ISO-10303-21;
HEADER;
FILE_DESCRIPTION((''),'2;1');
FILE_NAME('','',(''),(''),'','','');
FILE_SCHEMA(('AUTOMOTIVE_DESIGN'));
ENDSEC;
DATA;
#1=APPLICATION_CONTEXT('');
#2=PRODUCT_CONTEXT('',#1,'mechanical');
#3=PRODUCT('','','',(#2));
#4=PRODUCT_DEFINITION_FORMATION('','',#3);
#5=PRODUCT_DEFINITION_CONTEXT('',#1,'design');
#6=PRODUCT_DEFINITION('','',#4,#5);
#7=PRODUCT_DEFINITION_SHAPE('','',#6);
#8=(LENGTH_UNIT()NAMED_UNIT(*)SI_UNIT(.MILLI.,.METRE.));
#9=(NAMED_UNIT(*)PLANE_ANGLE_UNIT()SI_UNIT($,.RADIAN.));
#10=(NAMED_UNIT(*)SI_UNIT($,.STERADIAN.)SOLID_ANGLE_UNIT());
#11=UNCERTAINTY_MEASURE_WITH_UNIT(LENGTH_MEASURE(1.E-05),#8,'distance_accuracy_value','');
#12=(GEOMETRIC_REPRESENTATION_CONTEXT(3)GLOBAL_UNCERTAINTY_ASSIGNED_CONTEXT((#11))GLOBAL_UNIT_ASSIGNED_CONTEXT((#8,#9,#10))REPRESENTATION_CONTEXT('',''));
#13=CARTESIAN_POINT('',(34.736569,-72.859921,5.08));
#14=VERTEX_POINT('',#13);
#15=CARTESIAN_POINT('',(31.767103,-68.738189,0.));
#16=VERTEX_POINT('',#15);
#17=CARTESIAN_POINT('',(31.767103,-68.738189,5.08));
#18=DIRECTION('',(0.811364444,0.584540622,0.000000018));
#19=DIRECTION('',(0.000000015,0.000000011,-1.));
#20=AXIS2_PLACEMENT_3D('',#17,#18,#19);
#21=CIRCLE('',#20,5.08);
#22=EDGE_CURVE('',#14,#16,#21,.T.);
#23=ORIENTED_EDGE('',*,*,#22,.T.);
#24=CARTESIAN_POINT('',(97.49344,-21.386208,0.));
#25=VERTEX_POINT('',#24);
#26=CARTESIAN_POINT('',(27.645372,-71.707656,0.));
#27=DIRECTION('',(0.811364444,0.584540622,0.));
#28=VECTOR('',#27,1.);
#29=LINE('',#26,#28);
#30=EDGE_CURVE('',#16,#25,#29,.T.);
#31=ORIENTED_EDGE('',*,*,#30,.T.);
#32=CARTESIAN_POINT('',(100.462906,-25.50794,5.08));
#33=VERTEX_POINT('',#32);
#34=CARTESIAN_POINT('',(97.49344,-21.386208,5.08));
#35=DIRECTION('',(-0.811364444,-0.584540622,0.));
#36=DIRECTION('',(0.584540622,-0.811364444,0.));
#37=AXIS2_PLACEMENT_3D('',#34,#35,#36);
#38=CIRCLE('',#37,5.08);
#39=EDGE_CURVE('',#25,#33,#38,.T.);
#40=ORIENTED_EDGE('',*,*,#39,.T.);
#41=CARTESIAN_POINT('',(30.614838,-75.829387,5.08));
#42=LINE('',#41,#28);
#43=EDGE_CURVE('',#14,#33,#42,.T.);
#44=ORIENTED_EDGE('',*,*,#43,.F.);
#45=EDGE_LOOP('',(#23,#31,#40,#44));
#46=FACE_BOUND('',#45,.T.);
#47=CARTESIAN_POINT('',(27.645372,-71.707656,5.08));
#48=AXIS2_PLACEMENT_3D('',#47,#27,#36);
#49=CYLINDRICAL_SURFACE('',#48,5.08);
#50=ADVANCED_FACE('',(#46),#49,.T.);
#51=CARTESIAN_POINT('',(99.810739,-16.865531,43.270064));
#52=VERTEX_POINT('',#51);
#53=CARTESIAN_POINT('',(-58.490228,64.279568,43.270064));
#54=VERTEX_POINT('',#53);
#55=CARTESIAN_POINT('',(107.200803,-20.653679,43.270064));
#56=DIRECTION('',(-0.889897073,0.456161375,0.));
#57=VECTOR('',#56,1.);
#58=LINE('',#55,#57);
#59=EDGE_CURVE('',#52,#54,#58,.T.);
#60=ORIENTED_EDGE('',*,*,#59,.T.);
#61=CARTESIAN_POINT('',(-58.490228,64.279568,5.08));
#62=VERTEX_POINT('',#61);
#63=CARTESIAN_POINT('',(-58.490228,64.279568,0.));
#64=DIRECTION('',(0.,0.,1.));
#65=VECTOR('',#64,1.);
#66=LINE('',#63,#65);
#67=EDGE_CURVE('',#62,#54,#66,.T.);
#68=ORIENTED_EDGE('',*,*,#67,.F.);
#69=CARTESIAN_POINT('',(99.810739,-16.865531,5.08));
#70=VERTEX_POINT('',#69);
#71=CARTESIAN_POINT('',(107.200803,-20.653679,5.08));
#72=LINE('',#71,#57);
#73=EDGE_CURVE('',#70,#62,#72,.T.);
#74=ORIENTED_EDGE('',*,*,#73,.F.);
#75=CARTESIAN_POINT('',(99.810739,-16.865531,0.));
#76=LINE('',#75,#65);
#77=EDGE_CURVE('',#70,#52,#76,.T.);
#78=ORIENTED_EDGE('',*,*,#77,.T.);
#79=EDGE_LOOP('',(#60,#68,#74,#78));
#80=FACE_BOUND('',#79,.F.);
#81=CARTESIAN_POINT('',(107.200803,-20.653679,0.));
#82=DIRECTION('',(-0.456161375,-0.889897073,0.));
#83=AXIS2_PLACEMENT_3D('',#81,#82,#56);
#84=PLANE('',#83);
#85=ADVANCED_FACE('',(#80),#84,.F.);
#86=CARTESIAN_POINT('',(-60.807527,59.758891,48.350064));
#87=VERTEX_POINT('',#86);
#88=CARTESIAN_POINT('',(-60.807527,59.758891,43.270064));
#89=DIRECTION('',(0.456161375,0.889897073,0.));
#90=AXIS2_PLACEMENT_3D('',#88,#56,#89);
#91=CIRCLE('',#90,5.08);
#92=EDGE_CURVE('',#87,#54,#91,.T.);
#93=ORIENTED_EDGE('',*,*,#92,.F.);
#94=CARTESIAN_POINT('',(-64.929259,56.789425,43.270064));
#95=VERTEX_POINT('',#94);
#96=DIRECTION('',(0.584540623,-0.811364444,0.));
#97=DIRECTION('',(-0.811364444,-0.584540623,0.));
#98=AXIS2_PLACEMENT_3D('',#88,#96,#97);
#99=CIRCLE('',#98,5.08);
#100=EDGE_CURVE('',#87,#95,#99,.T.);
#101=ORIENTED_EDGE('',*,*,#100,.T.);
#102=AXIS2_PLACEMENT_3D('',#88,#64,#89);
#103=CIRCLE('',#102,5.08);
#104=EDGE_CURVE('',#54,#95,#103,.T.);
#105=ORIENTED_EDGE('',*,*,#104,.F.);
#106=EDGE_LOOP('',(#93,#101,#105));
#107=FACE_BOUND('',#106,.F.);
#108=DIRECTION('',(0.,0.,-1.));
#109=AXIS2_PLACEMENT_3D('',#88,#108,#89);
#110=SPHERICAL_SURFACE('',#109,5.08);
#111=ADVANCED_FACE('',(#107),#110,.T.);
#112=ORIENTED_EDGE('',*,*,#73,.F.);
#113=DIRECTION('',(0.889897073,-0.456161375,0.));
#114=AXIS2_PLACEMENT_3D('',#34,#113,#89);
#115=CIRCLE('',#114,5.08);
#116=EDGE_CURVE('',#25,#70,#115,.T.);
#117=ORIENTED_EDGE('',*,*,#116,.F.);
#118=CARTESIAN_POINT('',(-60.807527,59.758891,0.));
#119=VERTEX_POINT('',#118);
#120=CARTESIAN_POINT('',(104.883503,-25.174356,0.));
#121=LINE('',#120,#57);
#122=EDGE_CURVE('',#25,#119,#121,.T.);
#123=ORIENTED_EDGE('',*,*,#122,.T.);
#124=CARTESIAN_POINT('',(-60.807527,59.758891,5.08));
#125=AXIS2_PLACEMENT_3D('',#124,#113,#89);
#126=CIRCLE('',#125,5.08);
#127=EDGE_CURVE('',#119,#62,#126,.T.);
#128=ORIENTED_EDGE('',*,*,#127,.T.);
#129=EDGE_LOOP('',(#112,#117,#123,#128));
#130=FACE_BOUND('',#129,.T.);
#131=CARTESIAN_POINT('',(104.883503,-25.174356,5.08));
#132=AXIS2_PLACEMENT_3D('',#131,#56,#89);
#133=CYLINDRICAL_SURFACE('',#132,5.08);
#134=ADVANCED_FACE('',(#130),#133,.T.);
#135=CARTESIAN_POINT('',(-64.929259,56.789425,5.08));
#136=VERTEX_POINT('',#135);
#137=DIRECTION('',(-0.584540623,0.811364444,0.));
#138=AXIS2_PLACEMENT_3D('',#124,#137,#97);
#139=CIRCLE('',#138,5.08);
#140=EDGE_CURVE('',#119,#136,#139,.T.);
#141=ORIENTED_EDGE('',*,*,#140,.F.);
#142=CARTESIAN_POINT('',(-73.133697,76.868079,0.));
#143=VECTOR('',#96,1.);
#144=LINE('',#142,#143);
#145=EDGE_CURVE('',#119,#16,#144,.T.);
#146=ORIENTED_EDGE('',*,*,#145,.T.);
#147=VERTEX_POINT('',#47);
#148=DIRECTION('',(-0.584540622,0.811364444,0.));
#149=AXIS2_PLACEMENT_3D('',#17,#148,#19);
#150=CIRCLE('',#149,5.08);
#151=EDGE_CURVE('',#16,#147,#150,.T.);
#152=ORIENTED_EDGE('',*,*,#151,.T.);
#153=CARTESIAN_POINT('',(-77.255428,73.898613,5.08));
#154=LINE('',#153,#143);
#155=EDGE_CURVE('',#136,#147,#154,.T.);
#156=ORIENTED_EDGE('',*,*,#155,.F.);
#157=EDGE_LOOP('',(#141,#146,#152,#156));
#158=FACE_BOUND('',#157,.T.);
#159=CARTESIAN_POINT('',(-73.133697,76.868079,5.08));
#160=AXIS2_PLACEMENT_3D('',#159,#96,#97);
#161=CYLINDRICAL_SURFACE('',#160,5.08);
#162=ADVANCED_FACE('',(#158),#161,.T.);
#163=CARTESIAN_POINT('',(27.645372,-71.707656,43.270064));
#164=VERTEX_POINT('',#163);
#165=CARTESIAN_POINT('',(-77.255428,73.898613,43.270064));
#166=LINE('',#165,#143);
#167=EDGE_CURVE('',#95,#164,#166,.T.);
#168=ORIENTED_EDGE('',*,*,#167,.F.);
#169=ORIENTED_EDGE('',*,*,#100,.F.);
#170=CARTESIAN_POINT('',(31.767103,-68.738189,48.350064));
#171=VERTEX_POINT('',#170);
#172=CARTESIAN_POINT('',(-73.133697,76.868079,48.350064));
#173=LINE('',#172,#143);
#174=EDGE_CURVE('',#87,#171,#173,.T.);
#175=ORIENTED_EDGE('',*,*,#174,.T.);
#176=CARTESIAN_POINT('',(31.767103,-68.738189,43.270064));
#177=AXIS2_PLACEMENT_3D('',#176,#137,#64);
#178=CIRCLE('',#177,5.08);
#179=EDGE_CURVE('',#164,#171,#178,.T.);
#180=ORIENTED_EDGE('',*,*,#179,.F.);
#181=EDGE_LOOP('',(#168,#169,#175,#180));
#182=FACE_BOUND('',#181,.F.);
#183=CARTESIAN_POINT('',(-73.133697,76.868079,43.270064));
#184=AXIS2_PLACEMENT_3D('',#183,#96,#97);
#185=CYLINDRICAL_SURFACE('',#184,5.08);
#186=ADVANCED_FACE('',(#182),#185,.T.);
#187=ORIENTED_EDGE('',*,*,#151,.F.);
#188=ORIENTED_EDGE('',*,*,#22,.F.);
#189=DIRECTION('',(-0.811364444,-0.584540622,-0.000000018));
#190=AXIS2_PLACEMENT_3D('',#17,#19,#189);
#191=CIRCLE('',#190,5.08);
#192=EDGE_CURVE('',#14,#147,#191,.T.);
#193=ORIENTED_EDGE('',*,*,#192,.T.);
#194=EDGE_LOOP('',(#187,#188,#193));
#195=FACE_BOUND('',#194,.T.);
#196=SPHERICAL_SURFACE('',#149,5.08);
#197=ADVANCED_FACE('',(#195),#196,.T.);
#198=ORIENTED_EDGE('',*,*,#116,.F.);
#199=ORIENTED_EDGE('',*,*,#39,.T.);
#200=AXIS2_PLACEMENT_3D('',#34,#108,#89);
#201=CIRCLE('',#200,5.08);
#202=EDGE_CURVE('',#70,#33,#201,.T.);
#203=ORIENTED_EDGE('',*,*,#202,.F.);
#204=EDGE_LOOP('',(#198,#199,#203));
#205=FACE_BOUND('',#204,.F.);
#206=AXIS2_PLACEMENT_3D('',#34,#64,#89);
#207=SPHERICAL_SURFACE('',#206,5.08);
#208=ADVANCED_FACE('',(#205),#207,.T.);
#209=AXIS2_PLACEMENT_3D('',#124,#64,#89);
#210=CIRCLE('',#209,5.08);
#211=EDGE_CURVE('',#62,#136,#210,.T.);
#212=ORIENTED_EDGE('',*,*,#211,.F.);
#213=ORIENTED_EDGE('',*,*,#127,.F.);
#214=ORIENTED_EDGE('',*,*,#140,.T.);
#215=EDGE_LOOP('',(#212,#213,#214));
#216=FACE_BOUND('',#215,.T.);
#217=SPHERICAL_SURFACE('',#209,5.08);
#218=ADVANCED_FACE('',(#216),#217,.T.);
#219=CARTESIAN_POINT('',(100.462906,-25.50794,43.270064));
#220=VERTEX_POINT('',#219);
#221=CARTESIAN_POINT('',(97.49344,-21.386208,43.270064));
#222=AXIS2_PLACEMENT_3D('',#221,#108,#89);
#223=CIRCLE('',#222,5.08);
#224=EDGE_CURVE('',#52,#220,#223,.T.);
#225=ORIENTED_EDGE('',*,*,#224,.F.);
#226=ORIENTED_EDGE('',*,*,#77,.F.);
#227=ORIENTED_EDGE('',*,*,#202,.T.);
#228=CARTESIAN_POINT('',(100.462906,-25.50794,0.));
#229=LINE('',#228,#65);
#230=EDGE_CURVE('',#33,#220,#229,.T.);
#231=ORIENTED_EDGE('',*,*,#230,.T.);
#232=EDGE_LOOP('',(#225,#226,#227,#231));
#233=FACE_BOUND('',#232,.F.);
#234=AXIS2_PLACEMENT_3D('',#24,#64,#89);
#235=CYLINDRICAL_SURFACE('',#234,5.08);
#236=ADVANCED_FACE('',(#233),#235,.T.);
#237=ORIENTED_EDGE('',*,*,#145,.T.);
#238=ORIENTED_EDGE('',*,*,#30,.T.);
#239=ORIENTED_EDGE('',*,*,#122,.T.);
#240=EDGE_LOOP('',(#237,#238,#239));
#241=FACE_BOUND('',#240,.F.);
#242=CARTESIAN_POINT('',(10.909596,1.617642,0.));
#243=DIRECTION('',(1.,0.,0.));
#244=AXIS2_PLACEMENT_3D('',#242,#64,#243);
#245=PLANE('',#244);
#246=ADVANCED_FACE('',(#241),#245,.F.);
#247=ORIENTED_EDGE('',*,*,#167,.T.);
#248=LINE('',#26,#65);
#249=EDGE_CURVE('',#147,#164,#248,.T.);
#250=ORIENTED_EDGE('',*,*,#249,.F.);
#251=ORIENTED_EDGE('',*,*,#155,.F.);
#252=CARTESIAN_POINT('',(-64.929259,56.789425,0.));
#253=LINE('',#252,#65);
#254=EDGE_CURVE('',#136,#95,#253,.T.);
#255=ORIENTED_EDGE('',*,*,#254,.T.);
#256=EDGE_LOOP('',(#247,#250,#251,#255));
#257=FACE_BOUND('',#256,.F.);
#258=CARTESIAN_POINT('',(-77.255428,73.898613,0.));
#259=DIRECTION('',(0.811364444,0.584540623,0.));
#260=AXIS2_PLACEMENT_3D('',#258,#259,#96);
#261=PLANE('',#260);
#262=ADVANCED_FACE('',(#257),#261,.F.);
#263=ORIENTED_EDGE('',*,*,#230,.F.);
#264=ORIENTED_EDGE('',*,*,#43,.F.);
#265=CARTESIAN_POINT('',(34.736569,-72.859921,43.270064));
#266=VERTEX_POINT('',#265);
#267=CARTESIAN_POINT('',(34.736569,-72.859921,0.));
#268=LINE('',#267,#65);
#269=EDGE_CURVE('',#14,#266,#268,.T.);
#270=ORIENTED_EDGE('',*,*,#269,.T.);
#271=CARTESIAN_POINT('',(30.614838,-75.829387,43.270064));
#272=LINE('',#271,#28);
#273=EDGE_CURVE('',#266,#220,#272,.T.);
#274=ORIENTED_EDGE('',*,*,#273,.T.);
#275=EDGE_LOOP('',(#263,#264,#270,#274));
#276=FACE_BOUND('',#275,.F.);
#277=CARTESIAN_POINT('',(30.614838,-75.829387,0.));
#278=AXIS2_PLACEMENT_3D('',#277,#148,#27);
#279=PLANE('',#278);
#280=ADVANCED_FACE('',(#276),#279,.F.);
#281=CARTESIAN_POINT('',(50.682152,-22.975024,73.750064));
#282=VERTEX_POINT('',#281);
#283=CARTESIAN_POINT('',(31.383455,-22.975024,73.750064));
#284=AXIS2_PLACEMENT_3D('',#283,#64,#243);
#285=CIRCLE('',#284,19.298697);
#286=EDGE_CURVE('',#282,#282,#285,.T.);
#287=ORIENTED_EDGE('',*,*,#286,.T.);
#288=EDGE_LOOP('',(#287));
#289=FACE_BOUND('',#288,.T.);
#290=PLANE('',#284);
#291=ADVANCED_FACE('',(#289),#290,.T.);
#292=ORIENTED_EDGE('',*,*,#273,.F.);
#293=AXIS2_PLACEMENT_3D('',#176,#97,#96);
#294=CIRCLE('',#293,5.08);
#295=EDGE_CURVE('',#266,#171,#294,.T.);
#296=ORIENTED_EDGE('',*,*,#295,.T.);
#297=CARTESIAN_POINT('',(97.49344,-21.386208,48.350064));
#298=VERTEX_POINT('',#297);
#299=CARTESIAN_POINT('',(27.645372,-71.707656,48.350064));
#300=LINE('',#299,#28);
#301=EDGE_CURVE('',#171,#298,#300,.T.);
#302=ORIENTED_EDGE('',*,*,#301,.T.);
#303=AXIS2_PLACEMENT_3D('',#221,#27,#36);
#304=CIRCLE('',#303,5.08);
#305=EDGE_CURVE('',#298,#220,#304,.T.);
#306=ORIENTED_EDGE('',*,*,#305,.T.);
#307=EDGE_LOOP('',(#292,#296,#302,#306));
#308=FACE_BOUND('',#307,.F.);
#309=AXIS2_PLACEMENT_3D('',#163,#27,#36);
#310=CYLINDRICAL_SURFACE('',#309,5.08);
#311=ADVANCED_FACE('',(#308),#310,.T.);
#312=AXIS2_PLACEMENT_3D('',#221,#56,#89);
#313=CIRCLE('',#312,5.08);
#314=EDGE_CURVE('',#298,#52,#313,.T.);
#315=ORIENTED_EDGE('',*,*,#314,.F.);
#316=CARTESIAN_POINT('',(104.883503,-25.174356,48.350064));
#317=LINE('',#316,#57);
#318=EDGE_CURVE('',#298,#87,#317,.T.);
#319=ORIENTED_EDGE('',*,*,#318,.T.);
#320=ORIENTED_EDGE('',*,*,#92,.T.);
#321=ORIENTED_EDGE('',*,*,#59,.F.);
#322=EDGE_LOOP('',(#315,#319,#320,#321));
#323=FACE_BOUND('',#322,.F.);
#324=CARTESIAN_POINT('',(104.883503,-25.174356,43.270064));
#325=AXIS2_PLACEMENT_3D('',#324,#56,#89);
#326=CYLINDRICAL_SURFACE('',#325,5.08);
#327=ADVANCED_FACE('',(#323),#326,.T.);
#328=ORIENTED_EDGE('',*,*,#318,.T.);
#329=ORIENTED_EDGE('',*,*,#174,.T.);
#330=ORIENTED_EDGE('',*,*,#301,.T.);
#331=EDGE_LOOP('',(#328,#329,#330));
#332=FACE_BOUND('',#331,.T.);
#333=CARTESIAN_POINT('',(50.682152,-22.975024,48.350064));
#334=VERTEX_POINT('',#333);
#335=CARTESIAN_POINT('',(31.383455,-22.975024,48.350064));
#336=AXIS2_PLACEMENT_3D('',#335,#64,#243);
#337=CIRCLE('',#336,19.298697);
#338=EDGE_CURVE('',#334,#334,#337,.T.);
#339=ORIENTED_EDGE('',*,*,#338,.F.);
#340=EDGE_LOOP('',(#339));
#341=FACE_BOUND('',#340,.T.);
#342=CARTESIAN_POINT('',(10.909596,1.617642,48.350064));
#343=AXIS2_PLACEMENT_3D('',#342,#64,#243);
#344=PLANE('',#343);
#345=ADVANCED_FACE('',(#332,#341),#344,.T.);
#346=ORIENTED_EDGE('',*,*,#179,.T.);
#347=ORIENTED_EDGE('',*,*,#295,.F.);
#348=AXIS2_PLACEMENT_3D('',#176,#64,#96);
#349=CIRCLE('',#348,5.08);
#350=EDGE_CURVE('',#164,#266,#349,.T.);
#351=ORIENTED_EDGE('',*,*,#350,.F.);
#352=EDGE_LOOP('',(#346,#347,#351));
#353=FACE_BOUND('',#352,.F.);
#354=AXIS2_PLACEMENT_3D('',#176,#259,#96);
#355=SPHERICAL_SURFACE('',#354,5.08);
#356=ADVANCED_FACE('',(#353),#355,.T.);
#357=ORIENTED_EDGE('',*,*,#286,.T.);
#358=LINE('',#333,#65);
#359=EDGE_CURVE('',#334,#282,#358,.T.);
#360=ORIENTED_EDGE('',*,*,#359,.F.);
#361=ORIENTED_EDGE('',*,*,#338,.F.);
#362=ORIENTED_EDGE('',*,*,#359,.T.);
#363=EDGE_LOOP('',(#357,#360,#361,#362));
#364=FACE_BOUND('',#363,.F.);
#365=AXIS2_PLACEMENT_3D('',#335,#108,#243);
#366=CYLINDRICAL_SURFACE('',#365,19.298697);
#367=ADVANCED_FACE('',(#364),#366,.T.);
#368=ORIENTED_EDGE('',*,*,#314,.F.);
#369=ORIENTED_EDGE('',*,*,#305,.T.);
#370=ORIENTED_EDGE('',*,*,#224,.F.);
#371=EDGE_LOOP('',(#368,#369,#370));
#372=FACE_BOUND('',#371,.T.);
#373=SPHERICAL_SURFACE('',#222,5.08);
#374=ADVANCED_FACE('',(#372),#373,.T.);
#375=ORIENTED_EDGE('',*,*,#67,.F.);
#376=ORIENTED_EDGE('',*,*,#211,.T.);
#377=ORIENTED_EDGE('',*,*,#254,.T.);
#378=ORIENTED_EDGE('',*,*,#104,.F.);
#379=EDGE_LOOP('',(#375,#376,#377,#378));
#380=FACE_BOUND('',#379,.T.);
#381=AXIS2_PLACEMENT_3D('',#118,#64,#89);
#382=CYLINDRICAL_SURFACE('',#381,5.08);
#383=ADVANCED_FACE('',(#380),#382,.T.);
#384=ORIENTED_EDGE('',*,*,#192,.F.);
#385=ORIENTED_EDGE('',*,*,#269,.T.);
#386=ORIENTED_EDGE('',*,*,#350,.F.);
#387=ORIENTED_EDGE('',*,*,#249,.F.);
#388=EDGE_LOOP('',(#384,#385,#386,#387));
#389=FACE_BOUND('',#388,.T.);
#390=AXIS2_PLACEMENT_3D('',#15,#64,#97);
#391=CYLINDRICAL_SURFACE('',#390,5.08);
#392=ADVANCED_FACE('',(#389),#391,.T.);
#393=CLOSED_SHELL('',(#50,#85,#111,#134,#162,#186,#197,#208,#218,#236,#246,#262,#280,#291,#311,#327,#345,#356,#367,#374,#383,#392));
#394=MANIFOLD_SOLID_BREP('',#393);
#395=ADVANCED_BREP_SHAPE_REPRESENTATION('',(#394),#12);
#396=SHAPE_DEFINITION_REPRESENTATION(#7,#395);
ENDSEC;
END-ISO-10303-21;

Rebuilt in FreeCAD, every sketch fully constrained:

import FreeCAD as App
import Part
import Sketcher
Q = App.Units.Quantity

doc = App.newDocument("Part")
body = doc.addObject("PartDesign::Body", "Body")

# Sketch on XY plane
sketch1 = body.newObject("Sketcher::SketchObject", "Sketch")
sketch1.AttachmentSupport = (doc.getObject("XY_Plane"), [""])
sketch1.MapMode = "FlatFace"
sketch1.addGeometry([
    Part.LineSegment(App.Vector(107, -21, 0), App.Vector(-77, 74, 0)),
    Part.LineSegment(App.Vector(-77, 74, 0), App.Vector(31, -76, 0)),
    Part.LineSegment(App.Vector(31, -76, 0), App.Vector(107, -21, 0)),
], False)
sketch1.addConstraint([
    Sketcher.Constraint("Coincident", 0, 2, 1, 1),
    Sketcher.Constraint("Coincident", 1, 2, 2, 1),
    Sketcher.Constraint("Coincident", 2, 2, 0, 1),
    Sketcher.Constraint("Perpendicular", 1, 2),
    Sketcher.Constraint("DistanceY", 1, 2, 0, 2, Q("149.728 mm")),
    Sketcher.Constraint("Distance", 2, Q("94.391572 mm")),
    Sketcher.Constraint("DistanceY", 2, 2, -1, 1, Q("20.653679 mm")),
    Sketcher.Constraint("DistanceX", 0, 2, 2, 2, Q("184.456231 mm")),
    Sketcher.Constraint("DistanceX", 0, 2, -1, 1, Q("77.255428 mm")),
])
pad1 = body.newObject("PartDesign::Pad", "Pad")
pad1.Profile = sketch1
pad1.Length = 48.350064
doc.recompute()

fillet = body.newObject("PartDesign::Fillet", "Fillet")
fillet.Base = (pad1, ["Edge1"])
fillet.UseAllEdges = True
fillet.Radius = Q("0.2 in")

# Sketch on XY plane
sketch2 = body.newObject("Sketcher::SketchObject", "Sketch001")
sketch2.AttachmentSupport = (doc.getObject("XY_Plane"), [""])
sketch2.MapMode = "FlatFace"
sketch2.AttachmentOffset = App.Placement(App.Vector(0, 0, 48.350064), App.Rotation())
sketch2.addGeometry(Part.Circle(App.Vector(31, -23, 0), App.Vector(0, 0, 1), 19), False)
sketch2.addConstraint([
    Sketcher.Constraint("Diameter", 0, Q("38.597394 mm")),
    Sketcher.Constraint("DistanceX", -1, 1, 0, 3, Q("31.383455 mm")),
    Sketcher.Constraint("DistanceY", 0, 3, -1, 1, Q("22.975024 mm")),
])
pad2 = body.newObject("PartDesign::Pad", "Pad001")
pad2.Profile = sketch2
pad2.Length = Q("1 in")

doc.recompute()
